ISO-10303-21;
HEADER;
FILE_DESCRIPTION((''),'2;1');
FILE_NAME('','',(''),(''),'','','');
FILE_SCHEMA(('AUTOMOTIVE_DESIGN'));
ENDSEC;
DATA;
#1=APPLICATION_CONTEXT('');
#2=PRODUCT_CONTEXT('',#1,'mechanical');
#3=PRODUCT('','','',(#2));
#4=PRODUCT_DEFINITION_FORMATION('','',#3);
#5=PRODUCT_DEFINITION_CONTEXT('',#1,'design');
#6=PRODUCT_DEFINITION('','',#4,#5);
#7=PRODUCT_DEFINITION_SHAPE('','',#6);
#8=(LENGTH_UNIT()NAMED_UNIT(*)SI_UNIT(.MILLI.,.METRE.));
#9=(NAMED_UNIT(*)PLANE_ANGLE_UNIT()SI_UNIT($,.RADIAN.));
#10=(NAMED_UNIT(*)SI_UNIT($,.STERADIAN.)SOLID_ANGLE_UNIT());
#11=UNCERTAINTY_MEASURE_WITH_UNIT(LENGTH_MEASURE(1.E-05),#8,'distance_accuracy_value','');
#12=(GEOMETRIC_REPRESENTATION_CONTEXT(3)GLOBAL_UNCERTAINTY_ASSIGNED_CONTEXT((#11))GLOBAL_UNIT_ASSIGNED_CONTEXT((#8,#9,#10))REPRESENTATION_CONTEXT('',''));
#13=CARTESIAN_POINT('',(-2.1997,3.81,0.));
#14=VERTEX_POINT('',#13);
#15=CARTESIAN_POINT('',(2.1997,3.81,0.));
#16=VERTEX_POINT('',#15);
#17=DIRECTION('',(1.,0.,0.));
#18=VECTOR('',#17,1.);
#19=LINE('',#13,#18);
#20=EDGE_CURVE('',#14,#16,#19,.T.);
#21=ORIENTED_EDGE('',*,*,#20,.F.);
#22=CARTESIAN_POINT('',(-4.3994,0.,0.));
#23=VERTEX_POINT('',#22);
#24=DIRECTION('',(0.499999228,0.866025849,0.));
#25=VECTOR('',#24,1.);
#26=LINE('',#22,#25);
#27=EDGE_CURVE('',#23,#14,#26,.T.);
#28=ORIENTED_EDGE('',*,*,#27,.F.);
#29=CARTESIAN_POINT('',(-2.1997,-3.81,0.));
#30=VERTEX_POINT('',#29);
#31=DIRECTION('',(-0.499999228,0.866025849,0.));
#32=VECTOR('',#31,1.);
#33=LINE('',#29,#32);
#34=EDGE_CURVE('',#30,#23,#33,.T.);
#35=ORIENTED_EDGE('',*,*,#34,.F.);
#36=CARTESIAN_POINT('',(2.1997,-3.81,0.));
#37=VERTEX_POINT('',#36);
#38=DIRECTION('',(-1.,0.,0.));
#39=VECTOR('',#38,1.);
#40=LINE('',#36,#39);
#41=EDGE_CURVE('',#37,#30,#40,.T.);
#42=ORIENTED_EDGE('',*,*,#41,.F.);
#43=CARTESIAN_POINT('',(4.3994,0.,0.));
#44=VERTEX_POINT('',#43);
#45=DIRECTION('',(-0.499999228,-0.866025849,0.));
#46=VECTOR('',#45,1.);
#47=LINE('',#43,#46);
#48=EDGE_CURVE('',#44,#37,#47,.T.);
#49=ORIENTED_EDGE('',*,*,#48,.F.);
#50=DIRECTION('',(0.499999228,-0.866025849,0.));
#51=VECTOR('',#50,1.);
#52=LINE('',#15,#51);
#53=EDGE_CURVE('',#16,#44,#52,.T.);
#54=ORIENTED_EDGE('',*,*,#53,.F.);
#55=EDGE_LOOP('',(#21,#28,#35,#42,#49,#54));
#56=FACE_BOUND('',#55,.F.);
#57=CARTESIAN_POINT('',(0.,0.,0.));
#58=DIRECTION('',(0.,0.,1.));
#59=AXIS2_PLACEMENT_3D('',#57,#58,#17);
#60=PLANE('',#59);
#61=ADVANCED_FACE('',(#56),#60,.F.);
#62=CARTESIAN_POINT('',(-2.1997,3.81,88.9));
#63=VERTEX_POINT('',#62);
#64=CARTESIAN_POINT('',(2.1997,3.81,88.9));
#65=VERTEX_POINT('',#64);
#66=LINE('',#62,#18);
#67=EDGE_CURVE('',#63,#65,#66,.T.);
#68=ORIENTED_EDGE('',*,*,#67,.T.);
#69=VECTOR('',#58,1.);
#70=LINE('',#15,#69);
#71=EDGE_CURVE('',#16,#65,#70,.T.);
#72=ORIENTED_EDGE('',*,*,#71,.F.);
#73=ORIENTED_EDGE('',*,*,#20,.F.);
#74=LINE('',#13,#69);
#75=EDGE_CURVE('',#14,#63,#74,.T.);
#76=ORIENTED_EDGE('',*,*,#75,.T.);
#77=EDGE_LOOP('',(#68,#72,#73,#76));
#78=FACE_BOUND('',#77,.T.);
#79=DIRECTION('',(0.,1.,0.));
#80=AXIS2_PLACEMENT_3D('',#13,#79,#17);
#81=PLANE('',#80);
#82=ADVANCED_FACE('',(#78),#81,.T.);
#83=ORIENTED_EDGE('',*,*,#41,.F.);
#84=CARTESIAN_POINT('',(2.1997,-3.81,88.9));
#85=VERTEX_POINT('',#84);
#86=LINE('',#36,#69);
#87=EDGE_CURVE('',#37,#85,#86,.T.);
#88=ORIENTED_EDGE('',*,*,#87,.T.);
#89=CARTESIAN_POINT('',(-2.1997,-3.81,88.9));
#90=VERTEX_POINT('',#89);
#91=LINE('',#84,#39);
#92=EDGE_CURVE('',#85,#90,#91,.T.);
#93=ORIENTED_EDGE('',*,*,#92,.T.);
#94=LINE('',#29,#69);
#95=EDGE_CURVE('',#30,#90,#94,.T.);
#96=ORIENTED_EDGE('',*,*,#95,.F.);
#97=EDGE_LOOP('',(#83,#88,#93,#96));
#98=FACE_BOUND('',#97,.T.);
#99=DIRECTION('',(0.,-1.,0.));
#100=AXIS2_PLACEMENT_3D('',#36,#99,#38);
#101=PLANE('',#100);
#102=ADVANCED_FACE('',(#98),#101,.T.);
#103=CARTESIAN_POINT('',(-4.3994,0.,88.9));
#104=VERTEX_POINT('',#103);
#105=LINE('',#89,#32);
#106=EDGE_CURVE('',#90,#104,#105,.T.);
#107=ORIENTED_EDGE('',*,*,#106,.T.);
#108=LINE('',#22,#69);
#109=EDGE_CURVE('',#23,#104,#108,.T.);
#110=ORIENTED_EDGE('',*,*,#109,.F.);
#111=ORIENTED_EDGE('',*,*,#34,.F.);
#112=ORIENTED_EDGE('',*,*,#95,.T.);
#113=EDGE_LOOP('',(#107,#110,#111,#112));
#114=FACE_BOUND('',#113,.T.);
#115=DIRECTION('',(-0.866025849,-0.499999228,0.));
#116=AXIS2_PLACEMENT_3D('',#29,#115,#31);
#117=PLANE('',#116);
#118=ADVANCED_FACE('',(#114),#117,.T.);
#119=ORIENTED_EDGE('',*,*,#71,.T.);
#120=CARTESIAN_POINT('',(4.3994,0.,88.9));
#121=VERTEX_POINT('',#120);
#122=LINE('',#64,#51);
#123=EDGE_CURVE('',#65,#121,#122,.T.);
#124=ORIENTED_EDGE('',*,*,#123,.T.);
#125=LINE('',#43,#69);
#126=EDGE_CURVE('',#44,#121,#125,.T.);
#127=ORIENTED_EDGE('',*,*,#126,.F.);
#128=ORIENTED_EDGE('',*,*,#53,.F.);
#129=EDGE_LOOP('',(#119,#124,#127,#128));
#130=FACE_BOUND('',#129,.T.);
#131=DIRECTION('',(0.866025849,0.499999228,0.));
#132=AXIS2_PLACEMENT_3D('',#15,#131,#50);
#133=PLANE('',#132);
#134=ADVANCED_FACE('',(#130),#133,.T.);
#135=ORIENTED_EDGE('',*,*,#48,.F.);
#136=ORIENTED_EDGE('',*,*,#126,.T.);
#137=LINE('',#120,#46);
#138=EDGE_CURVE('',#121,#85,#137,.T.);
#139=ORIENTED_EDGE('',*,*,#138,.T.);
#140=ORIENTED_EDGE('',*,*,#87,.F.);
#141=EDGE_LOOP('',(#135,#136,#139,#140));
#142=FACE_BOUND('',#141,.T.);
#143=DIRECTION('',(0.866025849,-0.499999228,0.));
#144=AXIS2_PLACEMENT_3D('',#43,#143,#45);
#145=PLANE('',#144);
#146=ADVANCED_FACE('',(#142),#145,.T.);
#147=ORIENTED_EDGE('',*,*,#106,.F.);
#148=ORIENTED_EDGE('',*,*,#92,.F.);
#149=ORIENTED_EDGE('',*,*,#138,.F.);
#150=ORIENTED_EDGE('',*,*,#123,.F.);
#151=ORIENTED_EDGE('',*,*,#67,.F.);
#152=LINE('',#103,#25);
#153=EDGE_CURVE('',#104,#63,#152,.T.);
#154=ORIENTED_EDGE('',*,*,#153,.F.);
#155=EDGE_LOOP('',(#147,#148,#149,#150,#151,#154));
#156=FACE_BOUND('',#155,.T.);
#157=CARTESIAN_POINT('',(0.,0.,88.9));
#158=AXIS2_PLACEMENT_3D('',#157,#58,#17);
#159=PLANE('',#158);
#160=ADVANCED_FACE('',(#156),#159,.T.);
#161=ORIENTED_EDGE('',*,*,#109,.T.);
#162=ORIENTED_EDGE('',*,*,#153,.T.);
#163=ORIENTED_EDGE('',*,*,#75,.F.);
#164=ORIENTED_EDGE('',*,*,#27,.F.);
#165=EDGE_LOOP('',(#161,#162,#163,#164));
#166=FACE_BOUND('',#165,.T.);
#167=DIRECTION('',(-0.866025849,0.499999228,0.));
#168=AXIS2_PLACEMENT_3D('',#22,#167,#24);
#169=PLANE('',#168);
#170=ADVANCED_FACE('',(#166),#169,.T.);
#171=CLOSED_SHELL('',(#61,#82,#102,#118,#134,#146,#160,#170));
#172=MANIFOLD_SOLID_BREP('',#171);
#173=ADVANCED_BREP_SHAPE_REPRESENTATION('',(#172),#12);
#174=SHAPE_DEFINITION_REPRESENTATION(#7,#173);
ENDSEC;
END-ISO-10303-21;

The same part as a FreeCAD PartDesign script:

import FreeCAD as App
import Part
import Sketcher

V = App.Vector
Q = App.Units.Quantity

doc = App.newDocument("Part")
body = doc.addObject("PartDesign::Body", "Body")

# Sketch on XY plane
sketch1 = body.newObject("Sketcher::SketchObject", "Sketch")
sketch1.AttachmentSupport = (doc.getObject("XY_Plane"), [""])
sketch1.MapMode = "FlatFace"
sketch1.addGeometry(Part.LineSegment(V(4.4, 0, 0), V(2.2, 3.8, 0)), False)
sketch1.addGeometry(Part.LineSegment(V(2.2, 3.8, 0), V(-2.2, 3.8, 0)), False)
sketch1.addGeometry(Part.LineSegment(V(-2.2, 3.8, 0), V(-4.4, 0, 0)), False)
sketch1.addGeometry(Part.LineSegment(V(-4.4, 0, 0), V(-2.2, -3.8, 0)), False)
sketch1.addGeometry(Part.LineSegment(V(-2.2, -3.8, 0), V(2.2, -3.8, 0)), False)
sketch1.addGeometry(Part.LineSegment(V(2.2, -3.8, 0), V(4.4, 0, 0)), False)
sketch1.addConstraint(Sketcher.Constraint("Coincident", 0, 2, 1, 1))
sketch1.addConstraint(Sketcher.Constraint("Coincident", 1, 2, 2, 1))
sketch1.addConstraint(Sketcher.Constraint("Coincident", 2, 2, 3, 1))
sketch1.addConstraint(Sketcher.Constraint("Coincident", 3, 2, 4, 1))
sketch1.addConstraint(Sketcher.Constraint("Coincident", 4, 2, 5, 1))
sketch1.addConstraint(Sketcher.Constraint("Coincident", 5, 2, 0, 1))
sketch1.addConstraint(Sketcher.Constraint("Horizontal", 1))
sketch1.addConstraint(Sketcher.Constraint("Horizontal", 4))
sketch1.addConstraint(Sketcher.Constraint("Symmetric", 0, 2, 3, 2, -1, 1))
sketch1.addConstraint(Sketcher.Constraint("Symmetric", 2, 2, 5, 2, -1, 1))
sketch1.addConstraint(Sketcher.Constraint("PointOnObject", 2, 2, -1))
sketch1.addConstraint(Sketcher.Constraint("Parallel", 2, 5))
sketch1.addConstraint(Sketcher.Constraint("Vertical", 1, 2, 3, 2))
sketch1.addConstraint(Sketcher.Constraint("DistanceY", 3, 2, 1, 2, Q("0.3 in")))
sketch1.addConstraint(Sketcher.Constraint("Angle", 0, Q("120 deg")))
sketch1.addConstraint(Sketcher.Constraint("DistanceX", 1, 2, 1, 1, Q("0.1732 in")))
pad1 = body.newObject("PartDesign::Pad", "Pad")
pad1.Profile = sketch1
pad1.Length = Q("3.5 in")

doc.recompute()
